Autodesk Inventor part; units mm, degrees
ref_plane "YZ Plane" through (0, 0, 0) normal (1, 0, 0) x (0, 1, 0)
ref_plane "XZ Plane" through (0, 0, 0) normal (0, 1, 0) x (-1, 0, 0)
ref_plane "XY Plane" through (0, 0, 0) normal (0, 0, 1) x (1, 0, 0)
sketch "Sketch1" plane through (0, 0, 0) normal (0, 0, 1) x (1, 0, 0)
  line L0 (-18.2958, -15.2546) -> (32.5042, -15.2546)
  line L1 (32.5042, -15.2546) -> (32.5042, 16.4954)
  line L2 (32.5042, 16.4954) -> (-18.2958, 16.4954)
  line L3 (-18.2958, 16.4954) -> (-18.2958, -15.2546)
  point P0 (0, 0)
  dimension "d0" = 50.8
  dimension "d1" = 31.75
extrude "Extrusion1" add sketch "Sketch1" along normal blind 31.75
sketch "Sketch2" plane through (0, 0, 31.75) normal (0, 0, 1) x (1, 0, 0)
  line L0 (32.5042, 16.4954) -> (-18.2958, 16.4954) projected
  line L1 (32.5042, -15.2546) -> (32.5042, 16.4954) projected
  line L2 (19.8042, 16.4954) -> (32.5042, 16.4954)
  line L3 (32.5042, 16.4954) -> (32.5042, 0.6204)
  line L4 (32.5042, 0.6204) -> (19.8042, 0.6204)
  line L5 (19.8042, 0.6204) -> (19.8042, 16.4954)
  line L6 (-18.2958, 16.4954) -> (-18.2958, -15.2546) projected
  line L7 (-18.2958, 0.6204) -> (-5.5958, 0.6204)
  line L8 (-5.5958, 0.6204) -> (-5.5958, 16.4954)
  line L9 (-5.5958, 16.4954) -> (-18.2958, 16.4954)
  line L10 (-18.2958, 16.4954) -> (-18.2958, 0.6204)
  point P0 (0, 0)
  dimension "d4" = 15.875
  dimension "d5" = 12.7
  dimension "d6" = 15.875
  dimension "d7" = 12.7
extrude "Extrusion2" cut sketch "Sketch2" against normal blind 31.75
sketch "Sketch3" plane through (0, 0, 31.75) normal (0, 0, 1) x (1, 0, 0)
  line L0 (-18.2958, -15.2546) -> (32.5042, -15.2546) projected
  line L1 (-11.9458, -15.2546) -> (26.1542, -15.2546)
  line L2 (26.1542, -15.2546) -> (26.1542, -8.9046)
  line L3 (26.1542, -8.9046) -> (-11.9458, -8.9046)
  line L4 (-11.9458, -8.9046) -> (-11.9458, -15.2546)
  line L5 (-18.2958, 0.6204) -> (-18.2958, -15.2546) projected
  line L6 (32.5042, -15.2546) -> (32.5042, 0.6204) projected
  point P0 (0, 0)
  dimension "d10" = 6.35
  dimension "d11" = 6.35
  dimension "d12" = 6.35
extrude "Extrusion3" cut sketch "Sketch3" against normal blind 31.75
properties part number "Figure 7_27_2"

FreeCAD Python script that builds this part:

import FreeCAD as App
import Part
import Sketcher
from FreeCAD import Vector
Q = App.Units.Quantity

doc = App.newDocument("Part")
body = doc.addObject("PartDesign::Body", "Body")

# Sketch on XY plane
sketch1 = doc.addObject("Sketcher::SketchObject", "Sketch")
body.addObject(sketch1)
sketch1.AttachmentSupport = (doc.XY_Plane, [""])
sketch1.MapMode = "FlatFace"
sketch1.addGeometry([
    Part.LineSegment(Vector(-18.2958, 16.4954, 0), Vector(-18.2958, -15.2546, 0)),
    Part.LineSegment(Vector(-18.2958, -15.2546, 0), Vector(32.5042, -15.2546, 0)),
    Part.LineSegment(Vector(32.5042, -15.2546, 0), Vector(32.5042, 16.4954, 0)),
    Part.LineSegment(Vector(32.5042, 16.4954, 0), Vector(-18.2958, 16.4954, 0)),
], False)
sketch1.addConstraint([
    Sketcher.Constraint("Coincident", 0, 2, 1, 1),
    Sketcher.Constraint("Coincident", 1, 2, 2, 1),
    Sketcher.Constraint("Coincident", 2, 2, 3, 1),
    Sketcher.Constraint("Coincident", 3, 2, 0, 1),
    Sketcher.Constraint("Vertical", 0),
    Sketcher.Constraint("Horizontal", 1),
    Sketcher.Constraint("Vertical", 2),
    Sketcher.Constraint("Horizontal", 3),
    Sketcher.Constraint("DistanceX", 1, 1, 1, 2, Q("2 in")),
    Sketcher.Constraint("DistanceY", 0, 2, 0, 1, Q("1.25 in")),
    Sketcher.Constraint("DistanceX", 0, 2, -1, 1, Q("0.7203 in")),
    Sketcher.Constraint("DistanceY", 0, 2, -1, 1, Q("15.2546 mm")),
])
pad1 = doc.addObject("PartDesign::Pad", "Pad")
body.addObject(pad1)
pad1.Profile = sketch1
pad1.Length = Q("1.25 in")

# Sketch on XY plane
sketch2 = doc.addObject("Sketcher::SketchObject", "Sketch001")
body.addObject(sketch2)
sketch2.AttachmentSupport = (doc.XY_Plane, [""])
sketch2.MapMode = "FlatFace"
sketch2.AttachmentOffset = App.Placement(Vector(0, 0, 1.25 * 25.4), App.Rotation())
sketch2.addGeometry([
    Part.LineSegment(Vector(32.5042, 0.6204, 0), Vector(32.5042, 16.4954, 0)),  # 0
    Part.LineSegment(Vector(32.5042, 16.4954, 0), Vector(19.8042, 16.4954, 0)),  # 1
    Part.LineSegment(Vector(19.8042, 16.4954, 0), Vector(19.8042, 0.6204, 0)),  # 2
    Part.LineSegment(Vector(19.8042, 0.6204, 0), Vector(32.5042, 0.6204, 0)),  # 3
    Part.LineSegment(Vector(-5.5958, 0.6204, 0), Vector(-5.5958, 16.4954, 0)),  # 4
    Part.LineSegment(Vector(-5.5958, 16.4954, 0), Vector(-18.2958, 16.4954, 0)),  # 5
    Part.LineSegment(Vector(-18.2958, 16.4954, 0), Vector(-18.2958, 0.6204, 0)),  # 6
    Part.LineSegment(Vector(-18.2958, 0.6204, 0), Vector(-5.5958, 0.6204, 0)),  # 7
], False)
sketch2.addConstraint([
    Sketcher.Constraint("Coincident", 0, 2, 1, 1),
    Sketcher.Constraint("Coincident", 1, 2, 2, 1),
    Sketcher.Constraint("Coincident", 2, 2, 3, 1),
    Sketcher.Constraint("Coincident", 3, 2, 0, 1),
    Sketcher.Constraint("Coincident", 4, 2, 5, 1),
    Sketcher.Constraint("Coincident", 5, 2, 6, 1),
    Sketcher.Constraint("Coincident", 6, 2, 7, 1),
    Sketcher.Constraint("Coincident", 7, 2, 4, 1),
    Sketcher.Constraint("Vertical", 0),
    Sketcher.Constraint("Horizontal", 1),
    Sketcher.Constraint("Vertical", 2),
    Sketcher.Constraint("Horizontal", 3),
    Sketcher.Constraint("Vertical", 4),
    Sketcher.Constraint("Horizontal", 5),
    Sketcher.Constraint("Vertical", 6),
    Sketcher.Constraint("Horizontal", 7),
    Sketcher.Constraint("Horizontal", 1, 2, 4, 2),
    Sketcher.Constraint("Horizontal", 3, 2, 6, 2),
    Sketcher.Constraint("Equal", 3, 5),
    Sketcher.Constraint("DistanceX", 1, 2, 1, 1, Q("0.5 in")),
    Sketcher.Constraint("DistanceY", 0, 1, 0, 2, Q("0.625 in")),
    Sketcher.Constraint("DistanceX", 4, 2, 1, 2, Q("1 in")),
    Sketcher.Constraint("DistanceX", -1, 1, 0, 2, Q("1.2797 in")),
    Sketcher.Constraint("DistanceY", -1, 1, 0, 2, Q("16.4954 mm")),
])
pocket1 = doc.addObject("PartDesign::Pocket", "Pocket")
body.addObject(pocket1)
pocket1.Profile = sketch2
pocket1.Length = Q("1.25 in")

# Sketch on XY plane
sketch3 = doc.addObject("Sketcher::SketchObject", "Sketch002")
body.addObject(sketch3)
sketch3.AttachmentSupport = (doc.XY_Plane, [""])
sketch3.MapMode = "FlatFace"
sketch3.AttachmentOffset = App.Placement(Vector(0, 0, 1.25 * 25.4), App.Rotation())
sketch3.addGeometry([
    Part.LineSegment(Vector(-11.9458, -8.9046, 0), Vector(-11.9458, -15.2546, 0)),
    Part.LineSegment(Vector(-11.9458, -15.2546, 0), Vector(26.1542, -15.2546, 0)),
    Part.LineSegment(Vector(26.1542, -15.2546, 0), Vector(26.1542, -8.9046, 0)),
    Part.LineSegment(Vector(26.1542, -8.9046, 0), Vector(-11.9458, -8.9046, 0)),
], False)
sketch3.addConstraint([
    Sketcher.Constraint("Coincident", 0, 2, 1, 1),
    Sketcher.Constraint("Coincident", 1, 2, 2, 1),
    Sketcher.Constraint("Coincident", 2, 2, 3, 1),
    Sketcher.Constraint("Coincident", 3, 2, 0, 1),
    Sketcher.Constraint("Vertical", 0),
    Sketcher.Constraint("Horizontal", 1),
    Sketcher.Constraint("Vertical", 2),
    Sketcher.Constraint("Horizontal", 3),
    Sketcher.Constraint("DistanceY", 0, 2, 0, 1, Q("0.25 in")),
    Sketcher.Constraint("DistanceX", 1, 1, 1, 2, Q("1.5 in")),
    Sketcher.Constraint("DistanceX", 0, 2, -1, 1, Q("0.4703 in")),
    Sketcher.Constraint("DistanceY", 0, 2, -1, 1, Q("15.2546 mm")),
])
pocket2 = doc.addObject("PartDesign::Pocket", "Pocket001")
body.addObject(pocket2)
pocket2.Profile = sketch3
pocket2.Length = Q("1.25 in")

doc.recompute()
